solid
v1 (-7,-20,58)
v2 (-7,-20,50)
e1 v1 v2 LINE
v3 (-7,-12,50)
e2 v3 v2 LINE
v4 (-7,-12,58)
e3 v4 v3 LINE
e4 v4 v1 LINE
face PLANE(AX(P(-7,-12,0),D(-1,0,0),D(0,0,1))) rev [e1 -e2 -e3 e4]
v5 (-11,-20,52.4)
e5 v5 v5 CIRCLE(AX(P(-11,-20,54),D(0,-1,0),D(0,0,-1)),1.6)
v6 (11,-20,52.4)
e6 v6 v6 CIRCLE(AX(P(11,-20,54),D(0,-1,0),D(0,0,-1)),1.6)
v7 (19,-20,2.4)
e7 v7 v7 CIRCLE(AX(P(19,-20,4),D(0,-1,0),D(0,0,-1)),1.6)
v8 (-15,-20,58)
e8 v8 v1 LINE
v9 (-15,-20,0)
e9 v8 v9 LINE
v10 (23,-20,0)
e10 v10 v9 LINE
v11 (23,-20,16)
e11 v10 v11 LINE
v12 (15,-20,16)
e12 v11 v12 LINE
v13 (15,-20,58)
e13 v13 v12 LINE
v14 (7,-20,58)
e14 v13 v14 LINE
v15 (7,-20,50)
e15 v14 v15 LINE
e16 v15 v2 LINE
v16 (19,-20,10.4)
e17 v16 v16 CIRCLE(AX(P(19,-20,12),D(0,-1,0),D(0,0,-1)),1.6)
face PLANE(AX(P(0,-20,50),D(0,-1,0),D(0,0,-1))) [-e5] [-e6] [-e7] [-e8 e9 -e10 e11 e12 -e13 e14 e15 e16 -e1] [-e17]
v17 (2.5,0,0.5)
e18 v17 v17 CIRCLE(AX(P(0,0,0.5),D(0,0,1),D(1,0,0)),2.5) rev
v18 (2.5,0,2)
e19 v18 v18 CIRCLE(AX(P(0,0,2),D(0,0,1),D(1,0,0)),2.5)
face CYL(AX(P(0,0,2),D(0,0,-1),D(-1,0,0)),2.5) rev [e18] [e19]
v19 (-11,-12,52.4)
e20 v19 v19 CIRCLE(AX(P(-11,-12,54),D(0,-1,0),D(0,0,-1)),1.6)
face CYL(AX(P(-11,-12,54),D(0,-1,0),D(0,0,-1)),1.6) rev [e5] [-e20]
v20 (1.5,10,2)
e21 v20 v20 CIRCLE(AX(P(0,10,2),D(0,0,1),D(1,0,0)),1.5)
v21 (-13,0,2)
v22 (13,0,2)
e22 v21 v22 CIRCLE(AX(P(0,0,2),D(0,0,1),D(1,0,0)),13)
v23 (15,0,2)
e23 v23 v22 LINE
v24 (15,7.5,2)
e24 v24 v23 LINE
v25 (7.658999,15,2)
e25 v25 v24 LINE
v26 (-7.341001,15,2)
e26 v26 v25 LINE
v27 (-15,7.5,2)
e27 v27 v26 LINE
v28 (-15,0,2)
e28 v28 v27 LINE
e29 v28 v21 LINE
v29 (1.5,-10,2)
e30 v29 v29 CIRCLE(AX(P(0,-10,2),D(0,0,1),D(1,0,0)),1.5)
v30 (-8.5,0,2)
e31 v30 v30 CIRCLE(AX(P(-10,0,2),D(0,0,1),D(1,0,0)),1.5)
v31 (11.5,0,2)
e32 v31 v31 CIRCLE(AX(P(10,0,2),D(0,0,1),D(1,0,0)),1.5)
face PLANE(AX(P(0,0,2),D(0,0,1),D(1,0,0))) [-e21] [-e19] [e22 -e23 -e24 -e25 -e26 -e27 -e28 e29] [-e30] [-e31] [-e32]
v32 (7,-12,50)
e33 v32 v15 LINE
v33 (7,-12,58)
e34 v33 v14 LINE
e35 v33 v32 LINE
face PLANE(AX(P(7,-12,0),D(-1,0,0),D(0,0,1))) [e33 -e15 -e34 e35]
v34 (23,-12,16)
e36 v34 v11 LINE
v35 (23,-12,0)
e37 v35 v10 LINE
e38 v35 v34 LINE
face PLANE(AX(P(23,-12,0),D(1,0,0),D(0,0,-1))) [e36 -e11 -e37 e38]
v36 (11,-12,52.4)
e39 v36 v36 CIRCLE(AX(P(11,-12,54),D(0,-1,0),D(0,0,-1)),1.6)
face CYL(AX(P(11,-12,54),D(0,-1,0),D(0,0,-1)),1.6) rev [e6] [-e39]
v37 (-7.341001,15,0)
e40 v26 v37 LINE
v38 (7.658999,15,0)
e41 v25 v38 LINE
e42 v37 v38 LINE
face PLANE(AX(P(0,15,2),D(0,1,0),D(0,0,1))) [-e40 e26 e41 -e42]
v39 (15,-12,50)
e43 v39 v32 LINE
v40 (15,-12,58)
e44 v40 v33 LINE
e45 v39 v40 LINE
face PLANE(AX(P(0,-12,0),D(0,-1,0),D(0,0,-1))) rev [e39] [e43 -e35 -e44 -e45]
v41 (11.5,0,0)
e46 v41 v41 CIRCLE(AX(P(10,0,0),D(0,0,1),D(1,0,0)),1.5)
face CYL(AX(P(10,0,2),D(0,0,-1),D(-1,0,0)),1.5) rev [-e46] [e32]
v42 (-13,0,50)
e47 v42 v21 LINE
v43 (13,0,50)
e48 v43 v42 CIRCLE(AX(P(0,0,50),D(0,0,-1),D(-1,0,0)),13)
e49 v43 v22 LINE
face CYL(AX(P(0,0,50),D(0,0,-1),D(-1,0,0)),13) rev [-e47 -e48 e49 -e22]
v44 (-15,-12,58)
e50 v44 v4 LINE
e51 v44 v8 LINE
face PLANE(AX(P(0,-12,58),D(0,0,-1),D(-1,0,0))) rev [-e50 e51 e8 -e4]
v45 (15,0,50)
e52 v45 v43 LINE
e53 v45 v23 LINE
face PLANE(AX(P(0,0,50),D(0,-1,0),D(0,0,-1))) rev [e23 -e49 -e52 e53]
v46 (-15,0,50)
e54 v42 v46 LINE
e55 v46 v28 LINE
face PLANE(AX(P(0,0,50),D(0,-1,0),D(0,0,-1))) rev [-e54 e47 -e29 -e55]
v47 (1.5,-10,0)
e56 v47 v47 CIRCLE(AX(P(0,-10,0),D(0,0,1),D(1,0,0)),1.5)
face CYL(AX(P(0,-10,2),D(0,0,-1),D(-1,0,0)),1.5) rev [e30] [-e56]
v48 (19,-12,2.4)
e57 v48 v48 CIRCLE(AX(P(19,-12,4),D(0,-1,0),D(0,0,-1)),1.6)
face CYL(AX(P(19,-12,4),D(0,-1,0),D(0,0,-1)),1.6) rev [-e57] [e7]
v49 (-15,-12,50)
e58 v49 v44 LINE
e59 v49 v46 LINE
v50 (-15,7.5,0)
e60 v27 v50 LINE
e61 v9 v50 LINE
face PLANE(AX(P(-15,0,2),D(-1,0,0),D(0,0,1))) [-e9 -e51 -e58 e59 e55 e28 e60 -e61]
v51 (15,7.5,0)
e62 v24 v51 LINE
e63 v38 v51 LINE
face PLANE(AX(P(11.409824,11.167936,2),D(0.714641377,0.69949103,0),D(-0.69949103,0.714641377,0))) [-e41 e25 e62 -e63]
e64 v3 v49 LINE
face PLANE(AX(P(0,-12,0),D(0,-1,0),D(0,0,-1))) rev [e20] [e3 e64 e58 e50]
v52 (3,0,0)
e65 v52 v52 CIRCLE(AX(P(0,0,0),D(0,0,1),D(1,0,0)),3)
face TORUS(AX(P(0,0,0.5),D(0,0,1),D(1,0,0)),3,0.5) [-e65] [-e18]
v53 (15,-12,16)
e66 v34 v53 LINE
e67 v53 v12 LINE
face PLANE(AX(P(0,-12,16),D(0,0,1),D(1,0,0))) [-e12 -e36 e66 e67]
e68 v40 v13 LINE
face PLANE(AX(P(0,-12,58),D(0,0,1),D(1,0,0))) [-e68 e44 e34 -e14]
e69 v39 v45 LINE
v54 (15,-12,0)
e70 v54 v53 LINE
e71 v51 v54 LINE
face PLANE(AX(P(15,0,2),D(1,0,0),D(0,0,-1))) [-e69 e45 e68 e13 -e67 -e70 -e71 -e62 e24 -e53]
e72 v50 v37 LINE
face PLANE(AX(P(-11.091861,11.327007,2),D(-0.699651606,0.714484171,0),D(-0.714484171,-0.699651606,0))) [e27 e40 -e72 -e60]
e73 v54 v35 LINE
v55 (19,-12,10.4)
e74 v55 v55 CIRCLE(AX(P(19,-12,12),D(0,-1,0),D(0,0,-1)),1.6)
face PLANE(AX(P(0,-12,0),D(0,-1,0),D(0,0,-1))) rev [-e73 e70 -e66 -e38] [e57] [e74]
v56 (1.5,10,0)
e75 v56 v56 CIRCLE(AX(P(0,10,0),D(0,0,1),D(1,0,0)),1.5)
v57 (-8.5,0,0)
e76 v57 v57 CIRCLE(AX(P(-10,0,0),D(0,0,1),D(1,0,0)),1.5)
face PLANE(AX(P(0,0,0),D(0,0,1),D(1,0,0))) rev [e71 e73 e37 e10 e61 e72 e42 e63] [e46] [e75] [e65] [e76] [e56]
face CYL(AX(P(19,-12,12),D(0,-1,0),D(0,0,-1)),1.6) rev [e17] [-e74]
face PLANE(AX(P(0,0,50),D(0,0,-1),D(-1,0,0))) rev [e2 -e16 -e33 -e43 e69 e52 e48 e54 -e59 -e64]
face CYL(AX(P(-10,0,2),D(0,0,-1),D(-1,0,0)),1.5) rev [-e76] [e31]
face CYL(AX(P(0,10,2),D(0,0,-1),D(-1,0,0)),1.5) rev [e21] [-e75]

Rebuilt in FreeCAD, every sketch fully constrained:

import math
import FreeCAD as App
import Part
import Sketcher
Q = App.Units.Quantity


def edges_at(feature, points):
    """Names of the edges that pass closest to the given points."""
    edges = feature.Shape.Edges
    near = lambda p: min(range(len(edges)), key=lambda i: edges[i].distToShape(Part.Vertex(*p))[0])
    return sorted({f"Edge{near(p) + 1}" for p in points})


def add_polygon(sketch, points):
    """Adds a closed chain of lines whose ends are joined by coincident constraints."""
    first, n = sketch.GeometryCount, len(points)
    for a, b in zip(points, points[1:] + points[:1]):
        sketch.addGeometry(Part.LineSegment(App.Vector(*a, 0), App.Vector(*b, 0)), False)
    for i in range(n):
        sketch.addConstraint(Sketcher.Constraint("Coincident", first + i, 2, first + (i + 1) % n, 1))

doc = App.newDocument("Part")
body = doc.addObject("PartDesign::Body", "Body")

sketch1 = doc.addObject("Sketcher::SketchObject", "Sketch")
body.addObject(sketch1)
sketch1.AttachmentSupport = (doc.XY_Plane, [""])
sketch1.MapMode = "FlatFace"
sketch1.addGeometry([
    Part.LineSegment(App.Vector(-7.341001, 15, 0), App.Vector(-15, 7.5, 0)),
    Part.LineSegment(App.Vector(-15, 7.5, 0), App.Vector(-15, 0, 0)),
    Part.LineSegment(App.Vector(-15, 0, 0), App.Vector(-13, 0, 0)),
    Part.ArcOfCircle(Part.Circle(App.Vector(0, 0, 0), App.Vector(0, 0, 1), 13), math.radians(180), math.radians(360)),
    Part.LineSegment(App.Vector(13, 0, 0), App.Vector(15, 0, 0)),
    Part.LineSegment(App.Vector(15, 0, 0), App.Vector(15, 7.5, 0)),
    Part.LineSegment(App.Vector(15, 7.5, 0), App.Vector(7.658999, 15, 0)),
    Part.LineSegment(App.Vector(7.658999, 15, 0), App.Vector(-7.341001, 15, 0)),
    Part.Circle(App.Vector(0, -10, 0), App.Vector(0, 0, 1), 1.5),
    Part.Circle(App.Vector(-10, 0, 0), App.Vector(0, 0, 1), 1.5),
    Part.Circle(App.Vector(0, 0, 0), App.Vector(0, 0, 1), 2.5),
    Part.Circle(App.Vector(10, 0, 0), App.Vector(0, 0, 1), 1.5),
    Part.Circle(App.Vector(0, 10, 0), App.Vector(0, 0, 1), 1.5),
], False)
sketch1.addConstraint([
    Sketcher.Constraint("Coincident", 0, 2, 1, 1),
    Sketcher.Constraint("Coincident", 1, 2, 2, 1),
    Sketcher.Constraint("Coincident", 2, 2, 3, 1),
    Sketcher.Constraint("Coincident", 3, 2, 4, 1),
    Sketcher.Constraint("Coincident", 4, 2, 5, 1),
    Sketcher.Constraint("Coincident", 5, 2, 6, 1),
    Sketcher.Constraint("Coincident", 6, 2, 7, 1),
    Sketcher.Constraint("Coincident", 7, 2, 0, 1),
    Sketcher.Constraint("Vertical", 1),
    Sketcher.Constraint("Horizontal", 2),
    Sketcher.Constraint("Horizontal", 4),
    Sketcher.Constraint("Vertical", 5),
    Sketcher.Constraint("Horizontal", 7),
    Sketcher.Constraint("Coincident", 3, 3, -1, 1),
    Sketcher.Constraint("Coincident", 10, 3, -1, 1),
    Sketcher.Constraint("Equal", 8, 9),
    Sketcher.Constraint("Equal", 9, 11),
    Sketcher.Constraint("Equal", 11, 12),
    Sketcher.Constraint("Symmetric", 9, 3, 11, 3, -1, 1),
    Sketcher.Constraint("Symmetric", 8, 3, 12, 3, -1, 1),
    Sketcher.Constraint("Symmetric", 1, 2, 4, 2, -1, 1),
    Sketcher.Constraint("PointOnObject", 8, 3, -2),
    Sketcher.Constraint("PointOnObject", 9, 3, -1),
    Sketcher.Constraint("PointOnObject", 1, 2, -1),
    Sketcher.Constraint("Horizontal", 0, 2, 5, 2),
    Sketcher.Constraint("Diameter", 8, Q("3 mm")),
    Sketcher.Constraint("Diameter", 10, Q("5 mm")),
    Sketcher.Constraint("Radius", 3, Q("13 mm")),
    Sketcher.Constraint("DistanceX", 2, 1, 2, 2, Q("2 mm")),
    Sketcher.Constraint("DistanceX", 7, 2, 7, 1, Q("15 mm")),
    Sketcher.Constraint("DistanceY", 1, 2, 1, 1, Q("7.5 mm")),
    Sketcher.Constraint("DistanceY", 8, 3, -1, 1, Q("10 mm")),
    Sketcher.Constraint("DistanceX", 9, 3, -1, 1, Q("10 mm")),
    Sketcher.Constraint("DistanceY", -1, 1, 6, 2, Q("15 mm")),
    Sketcher.Constraint("DistanceX", -1, 1, 6, 2, Q("7.658999 mm")),
])
pad1 = doc.addObject("PartDesign::Pad", "Pad")
body.addObject(pad1)
pad1.Profile = sketch1
pad1.Length = 2

sketch2 = doc.addObject("Sketcher::SketchObject", "Sketch001")
body.addObject(sketch2)
sketch2.AttachmentSupport = (doc.XY_Plane, [""])
sketch2.MapMode = "FlatFace"
sketch2.addGeometry([
    Part.ArcOfCircle(Part.Circle(App.Vector(0, 0, 0), App.Vector(0, 0, 1), 13), math.radians(-180), math.radians(-90)),
    Part.ArcOfCircle(Part.Circle(App.Vector(0, 0, 0), App.Vector(0, 0, 1), 13), math.radians(-90), math.radians(0)),
    Part.LineSegment(App.Vector(13, 0, 0), App.Vector(15, 0, 0)),
    Part.LineSegment(App.Vector(15, 0, 0), App.Vector(15, -20, 0)),
    Part.LineSegment(App.Vector(15, -20, 0), App.Vector(-15, -20, 0)),
    Part.LineSegment(App.Vector(-15, -20, 0), App.Vector(-15, 0, 0)),
    Part.LineSegment(App.Vector(-15, 0, 0), App.Vector(-13, 0, 0)),
], False)
sketch2.addConstraint([
    Sketcher.Constraint("Tangent", 0, 2, 1, 1),
    Sketcher.Constraint("Coincident", 1, 2, 2, 1),
    Sketcher.Constraint("Coincident", 2, 2, 3, 1),
    Sketcher.Constraint("Coincident", 3, 2, 4, 1),
    Sketcher.Constraint("Coincident", 4, 2, 5, 1),
    Sketcher.Constraint("Coincident", 5, 2, 6, 1),
    Sketcher.Constraint("Coincident", 6, 2, 0, 1),
    Sketcher.Constraint("Horizontal", 2),
    Sketcher.Constraint("Vertical", 3),
    Sketcher.Constraint("Horizontal", 4),
    Sketcher.Constraint("Vertical", 5),
    Sketcher.Constraint("Horizontal", 6),
    Sketcher.Constraint("Coincident", 0, 3, -1, 1),
    Sketcher.Constraint("Equal", 0, 1),
    Sketcher.Constraint("Symmetric", 2, 2, 5, 2, -1, 1),
    Sketcher.Constraint("PointOnObject", 0, 2, -2),
    Sketcher.Constraint("PointOnObject", 1, 2, -1),
    Sketcher.Constraint("Radius", 0, Q("13 mm")),
    Sketcher.Constraint("DistanceX", 2, 1, 2, 2, Q("2 mm")),
    Sketcher.Constraint("DistanceY", 3, 2, 3, 1, Q("20 mm")),
])
pad2 = doc.addObject("PartDesign::Pad", "Pad001")
body.addObject(pad2)
pad2.Profile = sketch2
pad2.Length = 50
doc.recompute()

fillet = doc.addObject("PartDesign::Fillet", "Fillet")
body.addObject(fillet)
fillet.Base = (pad2, edges_at(pad2, [(-2.5, 0, 0)]))
fillet.Radius = 0.5

sketch3 = doc.addObject("Sketcher::SketchObject", "Sketch002")
body.addObject(sketch3)
sketch3.AttachmentSupport = (doc.XZ_Plane, [""])
sketch3.MapMode = "FlatFace"
sketch3.AttachmentOffset = App.Placement(App.Vector(0, 0, 20), App.Rotation())
add_polygon(sketch3, [(15, 16), (15, 0), (23, 0), (23, 16)])
sketch3.addGeometry(Part.Circle(App.Vector(19, 12, 0), App.Vector(0, 0, 1), 1.6), False)
sketch3.addGeometry(Part.Circle(App.Vector(19, 4, 0), App.Vector(0, 0, 1), 1.6), False)
add_polygon(sketch3, [(7, 58), (7, 50), (15, 50), (15, 58)])
sketch3.addGeometry(Part.Circle(App.Vector(11, 54, 0), App.Vector(0, 0, 1), 1.6), False)
add_polygon(sketch3, [(-15, 58), (-15, 50), (-7, 50), (-7, 58)])
sketch3.addGeometry(Part.Circle(App.Vector(-11, 54, 0), App.Vector(0, 0, 1), 1.6), False)
sketch3.addConstraint([
    Sketcher.Constraint("Vertical", 0),
    Sketcher.Constraint("Horizontal", 1),
    Sketcher.Constraint("Vertical", 2),
    Sketcher.Constraint("Horizontal", 3),
    Sketcher.Constraint("Vertical", 6),
    Sketcher.Constraint("Horizontal", 7),
    Sketcher.Constraint("Vertical", 8),
    Sketcher.Constraint("Horizontal", 9),
    Sketcher.Constraint("Vertical", 11),
    Sketcher.Constraint("Horizontal", 12),
    Sketcher.Constraint("Vertical", 13),
    Sketcher.Constraint("Horizontal", 14),
    Sketcher.Constraint("Equal", 4, 5),
    Sketcher.Constraint("Equal", 5, 10),
    Sketcher.Constraint("Equal", 10, 15),
    Sketcher.Constraint("Symmetric", 10, 3, 15, 3, -2),
    Sketcher.Constraint("Symmetric", 7, 2, 11, 2, -2),
    Sketcher.Constraint("Symmetric", 9, 2, 13, 2, -2),
    Sketcher.Constraint("PointOnObject", 0, 2, -1),
    Sketcher.Constraint("Vertical", 4, 3, 5, 3),
    Sketcher.Constraint("Vertical", 3, 2, 7, 2),
    Sketcher.Constraint("Equal", 3, 7),
    Sketcher.Constraint("Equal", 14, 6),
    Sketcher.Constraint("Diameter", 4, Q("3.2 mm")),
    Sketcher.Constraint("DistanceX", 1, 1, 1, 2, Q("8 mm")),
    Sketcher.Constraint("DistanceY", 0, 2, 0, 1, Q("16 mm")),
    Sketcher.Constraint("DistanceX", -1, 1, 4, 3, Q("19 mm")),
    Sketcher.Constraint("DistanceY", -1, 1, 4, 3, Q("12 mm")),
    Sketcher.Constraint("DistanceY", -1, 1, 5, 3, Q("4 mm")),
    Sketcher.Constraint("DistanceX", -1, 1, 10, 3, Q("11 mm")),
    Sketcher.Constraint("DistanceY", -1, 1, 10, 3, Q("54 mm")),
    Sketcher.Constraint("DistanceX", -1, 1, 0, 2, Q("15 mm")),
    Sketcher.Constraint("DistanceY", -1, 1, 6, 2, Q("50 mm")),
])
pad3 = doc.addObject("PartDesign::Pad", "Pad002")
body.addObject(pad3)
pad3.Profile = sketch3
pad3.Length = 8
pad3.Reversed = True

doc.recompute()
